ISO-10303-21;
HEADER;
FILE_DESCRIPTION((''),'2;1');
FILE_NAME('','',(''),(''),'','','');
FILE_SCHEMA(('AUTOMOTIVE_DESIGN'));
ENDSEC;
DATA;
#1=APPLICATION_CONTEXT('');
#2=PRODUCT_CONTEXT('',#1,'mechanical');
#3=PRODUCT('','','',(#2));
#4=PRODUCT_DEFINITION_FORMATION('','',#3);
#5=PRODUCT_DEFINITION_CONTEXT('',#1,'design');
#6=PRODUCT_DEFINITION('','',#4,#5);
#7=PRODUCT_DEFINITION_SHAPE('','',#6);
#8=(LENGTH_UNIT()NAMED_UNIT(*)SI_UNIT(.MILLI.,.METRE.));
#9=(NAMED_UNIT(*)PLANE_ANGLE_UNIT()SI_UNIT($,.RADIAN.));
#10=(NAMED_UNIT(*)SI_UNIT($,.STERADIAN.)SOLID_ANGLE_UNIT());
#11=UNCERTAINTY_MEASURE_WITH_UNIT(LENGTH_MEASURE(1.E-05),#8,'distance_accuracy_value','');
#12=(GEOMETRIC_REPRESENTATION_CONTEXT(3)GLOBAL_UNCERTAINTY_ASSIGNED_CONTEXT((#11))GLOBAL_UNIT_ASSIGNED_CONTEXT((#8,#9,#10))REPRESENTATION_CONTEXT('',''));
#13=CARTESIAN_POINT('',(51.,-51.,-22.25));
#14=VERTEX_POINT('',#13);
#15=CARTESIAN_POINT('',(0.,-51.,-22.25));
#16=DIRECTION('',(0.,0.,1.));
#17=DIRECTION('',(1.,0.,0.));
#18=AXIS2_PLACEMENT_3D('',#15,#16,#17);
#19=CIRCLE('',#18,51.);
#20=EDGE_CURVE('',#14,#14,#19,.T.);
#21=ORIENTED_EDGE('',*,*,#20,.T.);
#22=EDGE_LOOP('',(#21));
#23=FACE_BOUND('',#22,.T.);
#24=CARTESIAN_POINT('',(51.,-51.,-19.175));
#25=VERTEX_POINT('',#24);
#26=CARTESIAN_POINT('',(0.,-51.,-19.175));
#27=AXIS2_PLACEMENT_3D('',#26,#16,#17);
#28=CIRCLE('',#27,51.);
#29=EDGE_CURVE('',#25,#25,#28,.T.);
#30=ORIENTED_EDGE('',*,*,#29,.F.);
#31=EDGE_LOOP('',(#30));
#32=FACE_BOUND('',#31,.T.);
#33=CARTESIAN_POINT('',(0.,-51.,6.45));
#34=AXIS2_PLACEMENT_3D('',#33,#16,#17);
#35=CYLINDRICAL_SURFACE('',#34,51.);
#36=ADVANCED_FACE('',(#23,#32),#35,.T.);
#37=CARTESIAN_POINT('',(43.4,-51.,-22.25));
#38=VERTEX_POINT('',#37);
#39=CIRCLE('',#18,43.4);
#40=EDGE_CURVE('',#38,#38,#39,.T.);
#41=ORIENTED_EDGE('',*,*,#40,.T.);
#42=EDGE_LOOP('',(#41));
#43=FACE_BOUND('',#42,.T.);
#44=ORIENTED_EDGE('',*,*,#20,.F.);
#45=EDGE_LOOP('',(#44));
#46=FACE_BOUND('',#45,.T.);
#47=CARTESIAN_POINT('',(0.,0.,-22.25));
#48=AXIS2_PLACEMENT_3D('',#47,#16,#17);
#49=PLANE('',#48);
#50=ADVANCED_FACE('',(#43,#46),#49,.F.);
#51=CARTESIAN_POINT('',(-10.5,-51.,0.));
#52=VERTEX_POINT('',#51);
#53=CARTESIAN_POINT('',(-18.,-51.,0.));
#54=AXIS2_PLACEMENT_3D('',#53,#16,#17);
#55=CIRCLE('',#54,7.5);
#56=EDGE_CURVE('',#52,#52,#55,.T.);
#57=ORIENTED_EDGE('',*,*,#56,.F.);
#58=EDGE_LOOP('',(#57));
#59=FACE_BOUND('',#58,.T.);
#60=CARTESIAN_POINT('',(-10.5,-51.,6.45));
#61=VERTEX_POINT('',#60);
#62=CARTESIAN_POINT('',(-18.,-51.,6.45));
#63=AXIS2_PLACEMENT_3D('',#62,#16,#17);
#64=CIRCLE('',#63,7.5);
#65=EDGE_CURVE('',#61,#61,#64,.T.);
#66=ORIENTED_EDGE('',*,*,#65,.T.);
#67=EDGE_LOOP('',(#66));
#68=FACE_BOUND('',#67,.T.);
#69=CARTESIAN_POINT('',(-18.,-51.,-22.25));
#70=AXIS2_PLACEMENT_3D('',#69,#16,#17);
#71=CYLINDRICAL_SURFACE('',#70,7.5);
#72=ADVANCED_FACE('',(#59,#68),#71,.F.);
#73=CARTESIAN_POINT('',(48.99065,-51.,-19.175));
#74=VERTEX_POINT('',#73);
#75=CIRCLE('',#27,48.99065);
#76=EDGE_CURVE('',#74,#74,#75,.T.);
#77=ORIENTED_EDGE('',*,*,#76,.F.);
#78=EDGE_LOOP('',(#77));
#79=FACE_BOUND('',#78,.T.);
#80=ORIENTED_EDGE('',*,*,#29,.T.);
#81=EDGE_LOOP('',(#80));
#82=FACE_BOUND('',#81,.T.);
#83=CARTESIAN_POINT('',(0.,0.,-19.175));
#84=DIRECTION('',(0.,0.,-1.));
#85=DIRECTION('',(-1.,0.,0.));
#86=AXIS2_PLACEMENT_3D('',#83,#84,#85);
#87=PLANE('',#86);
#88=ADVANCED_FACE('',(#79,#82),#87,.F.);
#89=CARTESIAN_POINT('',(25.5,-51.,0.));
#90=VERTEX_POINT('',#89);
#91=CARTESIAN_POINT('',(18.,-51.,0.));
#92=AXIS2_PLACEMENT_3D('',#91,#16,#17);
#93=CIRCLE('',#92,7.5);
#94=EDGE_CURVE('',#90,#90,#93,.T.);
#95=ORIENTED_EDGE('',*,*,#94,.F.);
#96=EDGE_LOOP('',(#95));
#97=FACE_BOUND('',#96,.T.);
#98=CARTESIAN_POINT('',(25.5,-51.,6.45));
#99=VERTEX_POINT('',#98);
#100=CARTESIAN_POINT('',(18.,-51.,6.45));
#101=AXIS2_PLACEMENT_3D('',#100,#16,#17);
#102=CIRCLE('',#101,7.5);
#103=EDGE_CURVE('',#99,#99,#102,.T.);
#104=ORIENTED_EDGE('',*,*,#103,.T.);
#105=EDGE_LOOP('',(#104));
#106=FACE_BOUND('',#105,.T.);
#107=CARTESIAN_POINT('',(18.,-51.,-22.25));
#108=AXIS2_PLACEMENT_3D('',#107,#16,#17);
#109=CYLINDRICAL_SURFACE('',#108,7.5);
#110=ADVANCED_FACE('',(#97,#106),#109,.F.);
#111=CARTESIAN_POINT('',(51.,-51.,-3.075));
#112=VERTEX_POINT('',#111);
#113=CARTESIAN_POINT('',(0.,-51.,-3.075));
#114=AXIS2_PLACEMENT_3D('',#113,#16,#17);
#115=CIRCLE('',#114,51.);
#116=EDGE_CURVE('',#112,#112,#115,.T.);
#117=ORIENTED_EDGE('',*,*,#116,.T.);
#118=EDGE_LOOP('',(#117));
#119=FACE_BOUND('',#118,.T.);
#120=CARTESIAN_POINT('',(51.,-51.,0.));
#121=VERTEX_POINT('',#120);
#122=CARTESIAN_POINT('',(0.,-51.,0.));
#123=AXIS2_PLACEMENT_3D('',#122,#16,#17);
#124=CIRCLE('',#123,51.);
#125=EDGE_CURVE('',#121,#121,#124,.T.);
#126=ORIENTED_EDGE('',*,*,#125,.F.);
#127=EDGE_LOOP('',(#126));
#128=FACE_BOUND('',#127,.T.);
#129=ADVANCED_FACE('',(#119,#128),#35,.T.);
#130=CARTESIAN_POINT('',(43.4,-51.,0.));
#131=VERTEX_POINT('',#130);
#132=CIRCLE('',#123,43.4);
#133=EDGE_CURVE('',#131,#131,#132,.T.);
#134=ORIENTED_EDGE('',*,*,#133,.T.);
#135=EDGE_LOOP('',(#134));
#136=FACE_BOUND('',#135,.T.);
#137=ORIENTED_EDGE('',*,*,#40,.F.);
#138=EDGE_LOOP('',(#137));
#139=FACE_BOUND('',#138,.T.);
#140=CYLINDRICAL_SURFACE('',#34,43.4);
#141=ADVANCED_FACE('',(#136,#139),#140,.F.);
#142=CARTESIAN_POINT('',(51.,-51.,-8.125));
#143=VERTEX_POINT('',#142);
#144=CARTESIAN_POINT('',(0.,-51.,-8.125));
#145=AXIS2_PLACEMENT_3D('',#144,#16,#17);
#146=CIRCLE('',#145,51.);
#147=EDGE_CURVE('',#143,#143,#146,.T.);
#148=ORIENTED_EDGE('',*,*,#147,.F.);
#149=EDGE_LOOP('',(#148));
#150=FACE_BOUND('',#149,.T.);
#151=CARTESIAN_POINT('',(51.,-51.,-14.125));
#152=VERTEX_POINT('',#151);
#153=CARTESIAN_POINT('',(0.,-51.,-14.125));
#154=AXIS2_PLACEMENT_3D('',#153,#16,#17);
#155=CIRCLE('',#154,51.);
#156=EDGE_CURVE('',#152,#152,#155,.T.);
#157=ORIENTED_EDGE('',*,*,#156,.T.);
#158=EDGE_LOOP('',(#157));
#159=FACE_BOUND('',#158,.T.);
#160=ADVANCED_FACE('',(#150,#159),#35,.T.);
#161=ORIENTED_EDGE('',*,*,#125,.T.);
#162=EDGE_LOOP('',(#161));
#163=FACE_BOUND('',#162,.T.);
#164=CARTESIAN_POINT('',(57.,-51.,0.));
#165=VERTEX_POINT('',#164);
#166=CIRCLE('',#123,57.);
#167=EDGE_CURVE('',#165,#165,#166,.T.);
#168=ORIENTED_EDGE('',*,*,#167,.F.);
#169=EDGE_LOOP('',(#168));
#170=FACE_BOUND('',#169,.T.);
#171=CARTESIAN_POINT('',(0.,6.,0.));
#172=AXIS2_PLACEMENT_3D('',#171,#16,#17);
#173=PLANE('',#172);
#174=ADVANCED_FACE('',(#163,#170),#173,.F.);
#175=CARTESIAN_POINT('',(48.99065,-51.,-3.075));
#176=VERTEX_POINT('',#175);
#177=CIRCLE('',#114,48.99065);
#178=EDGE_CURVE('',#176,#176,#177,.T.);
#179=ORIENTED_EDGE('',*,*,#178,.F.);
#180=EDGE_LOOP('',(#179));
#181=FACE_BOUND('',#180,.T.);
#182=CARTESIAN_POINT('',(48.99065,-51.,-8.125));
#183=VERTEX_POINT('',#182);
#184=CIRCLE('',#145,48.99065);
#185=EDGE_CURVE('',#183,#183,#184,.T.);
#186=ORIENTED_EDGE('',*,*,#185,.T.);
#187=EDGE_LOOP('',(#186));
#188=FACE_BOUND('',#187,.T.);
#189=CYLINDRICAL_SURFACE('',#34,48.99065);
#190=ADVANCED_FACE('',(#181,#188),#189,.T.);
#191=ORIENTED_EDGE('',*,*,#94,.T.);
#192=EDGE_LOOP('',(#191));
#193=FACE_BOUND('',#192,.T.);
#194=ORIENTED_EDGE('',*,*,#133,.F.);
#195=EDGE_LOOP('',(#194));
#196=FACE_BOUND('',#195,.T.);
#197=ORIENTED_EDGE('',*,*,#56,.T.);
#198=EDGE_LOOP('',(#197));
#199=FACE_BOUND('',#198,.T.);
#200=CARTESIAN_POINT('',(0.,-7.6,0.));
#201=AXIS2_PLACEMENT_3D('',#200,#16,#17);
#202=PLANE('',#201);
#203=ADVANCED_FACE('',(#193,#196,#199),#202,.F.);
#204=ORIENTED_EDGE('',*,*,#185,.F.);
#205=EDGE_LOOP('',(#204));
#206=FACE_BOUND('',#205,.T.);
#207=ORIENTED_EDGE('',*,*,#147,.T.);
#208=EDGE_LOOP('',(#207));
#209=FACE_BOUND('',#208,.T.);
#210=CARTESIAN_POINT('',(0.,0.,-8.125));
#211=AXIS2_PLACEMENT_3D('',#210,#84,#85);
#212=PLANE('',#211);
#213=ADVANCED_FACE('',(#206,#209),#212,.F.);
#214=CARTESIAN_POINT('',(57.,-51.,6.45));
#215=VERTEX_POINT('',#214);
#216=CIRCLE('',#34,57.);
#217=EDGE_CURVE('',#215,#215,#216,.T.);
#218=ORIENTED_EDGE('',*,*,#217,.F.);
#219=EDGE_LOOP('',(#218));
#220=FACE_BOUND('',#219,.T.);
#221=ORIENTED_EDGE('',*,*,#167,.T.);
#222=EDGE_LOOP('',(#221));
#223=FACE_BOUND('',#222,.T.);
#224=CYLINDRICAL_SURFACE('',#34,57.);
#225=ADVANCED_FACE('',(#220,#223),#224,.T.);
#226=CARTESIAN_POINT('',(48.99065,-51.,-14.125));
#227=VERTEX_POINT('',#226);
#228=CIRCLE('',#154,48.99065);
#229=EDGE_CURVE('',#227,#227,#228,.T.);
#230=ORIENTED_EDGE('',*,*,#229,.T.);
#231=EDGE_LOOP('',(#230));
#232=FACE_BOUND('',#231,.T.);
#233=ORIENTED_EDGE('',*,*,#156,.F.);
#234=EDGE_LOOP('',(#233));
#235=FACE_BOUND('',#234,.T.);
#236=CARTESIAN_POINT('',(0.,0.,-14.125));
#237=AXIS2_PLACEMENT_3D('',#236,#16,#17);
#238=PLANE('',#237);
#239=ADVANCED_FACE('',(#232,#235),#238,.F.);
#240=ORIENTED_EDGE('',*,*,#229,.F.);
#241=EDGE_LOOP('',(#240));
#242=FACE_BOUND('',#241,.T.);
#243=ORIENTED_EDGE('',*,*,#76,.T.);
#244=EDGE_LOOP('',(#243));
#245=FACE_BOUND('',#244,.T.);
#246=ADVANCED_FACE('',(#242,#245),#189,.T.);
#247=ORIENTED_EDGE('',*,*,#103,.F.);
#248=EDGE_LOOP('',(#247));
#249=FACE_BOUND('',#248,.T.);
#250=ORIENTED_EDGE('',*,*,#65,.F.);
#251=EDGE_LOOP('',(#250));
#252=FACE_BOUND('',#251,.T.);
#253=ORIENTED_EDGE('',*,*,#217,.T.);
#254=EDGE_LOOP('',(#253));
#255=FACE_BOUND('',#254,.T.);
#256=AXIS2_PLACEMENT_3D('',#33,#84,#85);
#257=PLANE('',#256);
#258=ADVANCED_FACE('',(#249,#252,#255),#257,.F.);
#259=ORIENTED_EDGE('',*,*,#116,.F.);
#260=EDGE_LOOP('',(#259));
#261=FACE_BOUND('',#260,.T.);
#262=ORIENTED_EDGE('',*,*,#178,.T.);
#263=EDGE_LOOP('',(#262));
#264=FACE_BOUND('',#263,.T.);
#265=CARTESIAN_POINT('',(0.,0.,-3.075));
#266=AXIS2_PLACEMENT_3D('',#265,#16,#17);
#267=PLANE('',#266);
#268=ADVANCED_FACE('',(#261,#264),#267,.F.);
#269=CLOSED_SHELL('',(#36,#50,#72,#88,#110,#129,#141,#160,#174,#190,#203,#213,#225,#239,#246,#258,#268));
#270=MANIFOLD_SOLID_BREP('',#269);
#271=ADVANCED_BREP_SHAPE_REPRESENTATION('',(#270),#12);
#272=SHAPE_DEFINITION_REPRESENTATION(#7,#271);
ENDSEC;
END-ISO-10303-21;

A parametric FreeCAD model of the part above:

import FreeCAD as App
import Part
import Sketcher
Q = App.Units.Quantity


def add_polygon(sketch, points):
    """Adds a closed chain of lines whose ends are joined by coincident constraints."""
    first, n = sketch.GeometryCount, len(points)
    for a, b in zip(points, points[1:] + points[:1]):
        sketch.addGeometry(Part.LineSegment(App.Vector(*a, 0), App.Vector(*b, 0)), False)
    for i in range(n):
        sketch.addConstraint(Sketcher.Constraint("Coincident", first + i, 2, first + (i + 1) % n, 1))

doc = App.newDocument("Part")
body = doc.addObject("PartDesign::Body", "Body")

sketch1 = body.newObject("Sketcher::SketchObject", "Sketch")
sketch1.AttachmentSupport = (doc.getObject("YZ_Plane"), [""])
sketch1.MapMode = "FlatFace"
add_polygon(sketch1, [(6, 0), (6, 6.45), (-51, 6.45), (-51, 0), (-7.6, 0), (-7.6, -22.25), (0, -22.25), (0, -19.175), (-2.00935, -19.175), (-2.00935, -14.125), (0, -14.125), (0, -8.125), (-2.00935, -8.125), (-2.00935, -3.075), (0, -3.075), (0, 0)])
sketch1.addGeometry(Part.LineSegment(App.Vector(-51, 6.45, 0), App.Vector(-51, -22.25, 0)), True)
sketch1.addConstraint([
    Sketcher.Constraint("Vertical", 0),
    Sketcher.Constraint("Horizontal", 1),
    Sketcher.Constraint("Vertical", 2),
    Sketcher.Constraint("Horizontal", 3),
    Sketcher.Constraint("Vertical", 4),
    Sketcher.Constraint("Horizontal", 5),
    Sketcher.Constraint("Vertical", 6),
    Sketcher.Constraint("Horizontal", 7),
    Sketcher.Constraint("Vertical", 8),
    Sketcher.Constraint("Horizontal", 9),
    Sketcher.Constraint("Vertical", 10),
    Sketcher.Constraint("Horizontal", 11),
    Sketcher.Constraint("Vertical", 12),
    Sketcher.Constraint("Horizontal", 13),
    Sketcher.Constraint("Vertical", 14),
    Sketcher.Constraint("Horizontal", 15),
    Sketcher.Constraint("Vertical", 16),
    Sketcher.Constraint("Coincident", 14, 2, -1, 1),
    Sketcher.Constraint("Coincident", 16, 1, 1, 2),
    Sketcher.Constraint("PointOnObject", 2, 2, -1),
    Sketcher.Constraint("PointOnObject", 5, 2, -2),
    Sketcher.Constraint("PointOnObject", 9, 2, -2),
    Sketcher.Constraint("Horizontal", 5, 2, 16, 2),
    Sketcher.Constraint("Vertical", 8, 2, 11, 2),
    Sketcher.Constraint("Equal", 15, 10),
    Sketcher.Constraint("Equal", 8, 12),
    Sketcher.Constraint("Equal", 6, 14),
    Sketcher.Constraint("DistanceX", 1, 2, 1, 1, Q("57 mm")),
    Sketcher.Constraint("DistanceX", 15, 1, 15, 2, Q("6 mm")),
    Sketcher.Constraint("DistanceX", 3, 1, 3, 2, Q("43.4 mm")),
    Sketcher.Constraint("DistanceY", 16, 2, 16, 1, Q("28.7 mm")),
    Sketcher.Constraint("DistanceY", 0, 1, 0, 2, Q("6.45 mm")),
    Sketcher.Constraint("DistanceY", 8, 1, 8, 2, Q("5.05 mm")),
    Sketcher.Constraint("DistanceX", 7, 2, 7, 1, Q("2.00935 mm")),
])
revolution = body.newObject("PartDesign::Revolution", "Revolution")
revolution.Profile = sketch1
revolution.ReferenceAxis = (sketch1, ["Axis0"])
revolution.Angle = 360

sketch2 = body.newObject("Sketcher::SketchObject", "Sketch001")
sketch2.AttachmentSupport = (doc.getObject("XY_Plane"), [""])
sketch2.MapMode = "FlatFace"
sketch2.AttachmentOffset = App.Placement(App.Vector(0, 0, 6.45), App.Rotation())
sketch2.addGeometry([
    Part.Circle(App.Vector(18, -51, 0), App.Vector(0, 0, 1), 7.5),
    Part.Circle(App.Vector(-18, -51, 0), App.Vector(0, 0, 1), 7.5),
], False)
sketch2.addConstraint([
    Sketcher.Constraint("Equal", 0, 1),
    Sketcher.Constraint("Symmetric", 0, 3, 1, 3, -2),
    Sketcher.Constraint("Diameter", 0, Q("15 mm")),
    Sketcher.Constraint("DistanceX", -1, 1, 0, 3, Q("18 mm")),
    Sketcher.Constraint("DistanceY", 0, 3, -1, 1, Q("51 mm")),
])
pocket1 = body.newObject("PartDesign::Pocket", "Pocket")
pocket1.Profile = sketch2
pocket1.Type = "ThroughAll"

doc.recompute()
